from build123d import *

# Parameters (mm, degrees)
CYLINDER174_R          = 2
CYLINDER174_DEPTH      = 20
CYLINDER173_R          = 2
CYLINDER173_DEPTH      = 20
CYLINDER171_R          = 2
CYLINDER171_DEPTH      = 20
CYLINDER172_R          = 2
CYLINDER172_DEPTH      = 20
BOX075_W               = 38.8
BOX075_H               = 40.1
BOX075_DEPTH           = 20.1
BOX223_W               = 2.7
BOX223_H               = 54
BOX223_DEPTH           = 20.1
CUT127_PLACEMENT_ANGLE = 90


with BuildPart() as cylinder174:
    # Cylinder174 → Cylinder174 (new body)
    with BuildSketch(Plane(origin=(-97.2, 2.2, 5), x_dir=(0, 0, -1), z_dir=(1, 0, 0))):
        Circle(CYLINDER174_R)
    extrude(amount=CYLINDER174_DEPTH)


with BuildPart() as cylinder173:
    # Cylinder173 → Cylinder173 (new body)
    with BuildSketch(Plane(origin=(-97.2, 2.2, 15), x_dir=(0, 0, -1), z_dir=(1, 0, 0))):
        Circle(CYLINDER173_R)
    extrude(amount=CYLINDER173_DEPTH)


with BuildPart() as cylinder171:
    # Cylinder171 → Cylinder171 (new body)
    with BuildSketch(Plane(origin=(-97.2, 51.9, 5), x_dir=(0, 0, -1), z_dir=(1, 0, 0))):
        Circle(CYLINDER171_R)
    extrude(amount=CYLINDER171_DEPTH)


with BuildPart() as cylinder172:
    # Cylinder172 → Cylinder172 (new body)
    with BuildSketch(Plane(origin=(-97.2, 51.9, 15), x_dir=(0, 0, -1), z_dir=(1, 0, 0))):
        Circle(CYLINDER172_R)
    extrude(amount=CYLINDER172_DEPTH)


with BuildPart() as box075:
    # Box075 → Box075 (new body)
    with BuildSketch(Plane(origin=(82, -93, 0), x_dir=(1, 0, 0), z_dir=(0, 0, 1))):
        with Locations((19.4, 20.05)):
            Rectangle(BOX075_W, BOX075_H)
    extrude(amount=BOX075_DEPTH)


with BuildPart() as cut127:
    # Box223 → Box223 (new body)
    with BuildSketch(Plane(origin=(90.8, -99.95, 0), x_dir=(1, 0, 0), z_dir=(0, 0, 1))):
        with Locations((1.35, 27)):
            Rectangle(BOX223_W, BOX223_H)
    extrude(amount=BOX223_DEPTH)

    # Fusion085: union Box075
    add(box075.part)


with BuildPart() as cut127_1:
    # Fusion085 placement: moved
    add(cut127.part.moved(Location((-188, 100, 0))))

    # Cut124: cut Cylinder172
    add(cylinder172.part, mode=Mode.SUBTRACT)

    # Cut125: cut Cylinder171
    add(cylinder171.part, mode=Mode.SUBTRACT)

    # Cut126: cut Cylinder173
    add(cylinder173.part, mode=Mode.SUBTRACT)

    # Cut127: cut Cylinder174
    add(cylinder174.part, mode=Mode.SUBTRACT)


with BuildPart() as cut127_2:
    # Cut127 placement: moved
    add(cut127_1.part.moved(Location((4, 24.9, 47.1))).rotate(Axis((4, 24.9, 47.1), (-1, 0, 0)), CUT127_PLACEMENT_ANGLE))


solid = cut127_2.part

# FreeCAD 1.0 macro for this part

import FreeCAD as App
import Part
import Sketcher

doc = App.newDocument("Part")
body = doc.addObject("PartDesign::Body", "Body")

# Sketch on YZ plane
sketch1 = body.newObject("Sketcher::SketchObject", "Sketch")
sketch1.AttachmentSupport = (doc.getObject("YZ_Plane"), [""])
sketch1.MapMode = "FlatFace"
sketch1.AttachmentOffset = App.Placement(App.Vector(0, 0, -97.2), App.Rotation())
sketch1.addGeometry(Part.Circle(App.Vector(2.2, 5, 0), App.Vector(0, 0, 1), 2), False)
sketch1.addConstraint(Sketcher.Constraint("Diameter", 0, 4.0))
sketch1.addConstraint(Sketcher.Constraint("DistanceY", -1, 1, 0, 3, 5.0))
sketch1.addConstraint(Sketcher.Constraint("DistanceX", -1, 1, 0, 3, 2.2))
pad1 = body.newObject("PartDesign::Pad", "Pad")
pad1.Profile = sketch1
pad1.Length = 20
body2 = doc.addObject("PartDesign::Body", "Body001")

# Sketch on YZ plane
sketch2 = body2.newObject("Sketcher::SketchObject", "Sketch001")
sketch2.AttachmentSupport = (doc.getObject("YZ_Plane001"), [""])
sketch2.MapMode = "FlatFace"
sketch2.AttachmentOffset = App.Placement(App.Vector(0, 0, -97.2), App.Rotation())
sketch2.addGeometry(Part.Circle(App.Vector(2.2, 15, 0), App.Vector(0, 0, 1), 2), False)
sketch2.addConstraint(Sketcher.Constraint("Diameter", 0, 4.0))
sketch2.addConstraint(Sketcher.Constraint("DistanceY", -1, 1, 0, 3, 15.0))
sketch2.addConstraint(Sketcher.Constraint("DistanceX", -1, 1, 0, 3, 2.2))
pad2 = body2.newObject("PartDesign::Pad", "Pad001")
pad2.Profile = sketch2
pad2.Length = 20
body3 = doc.addObject("PartDesign::Body", "Body002")

# Sketch on YZ plane
sketch3 = body3.newObject("Sketcher::SketchObject", "Sketch002")
sketch3.AttachmentSupport = (doc.getObject("YZ_Plane002"), [""])
sketch3.MapMode = "FlatFace"
sketch3.AttachmentOffset = App.Placement(App.Vector(0, 0, -97.2), App.Rotation())
sketch3.addGeometry(Part.Circle(App.Vector(51.9, 5, 0), App.Vector(0, 0, 1), 2), False)
sketch3.addConstraint(Sketcher.Constraint("Diameter", 0, 4.0))
sketch3.addConstraint(Sketcher.Constraint("DistanceY", -1, 1, 0, 3, 5.0))
sketch3.addConstraint(Sketcher.Constraint("DistanceX", -1, 1, 0, 3, 51.9))
pad3 = body3.newObject("PartDesign::Pad", "Pad002")
pad3.Profile = sketch3
pad3.Length = 20
body4 = doc.addObject("PartDesign::Body", "Body003")

# Sketch on YZ plane
sketch4 = body4.newObject("Sketcher::SketchObject", "Sketch003")
sketch4.AttachmentSupport = (doc.getObject("YZ_Plane003"), [""])
sketch4.MapMode = "FlatFace"
sketch4.AttachmentOffset = App.Placement(App.Vector(0, 0, -97.2), App.Rotation())
sketch4.addGeometry(Part.Circle(App.Vector(51.9, 15, 0), App.Vector(0, 0, 1), 2), False)
sketch4.addConstraint(Sketcher.Constraint("Diameter", 0, 4.0))
sketch4.addConstraint(Sketcher.Constraint("DistanceY", -1, 1, 0, 3, 15.0))
sketch4.addConstraint(Sketcher.Constraint("DistanceX", -1, 1, 0, 3, 51.9))
pad4 = body4.newObject("PartDesign::Pad", "Pad003")
pad4.Profile = sketch4
pad4.Length = 20
body5 = doc.addObject("PartDesign::Body", "Body004")

# Sketch on XY plane
sketch5 = body5.newObject("Sketcher::SketchObject", "Sketch004")
sketch5.AttachmentSupport = (doc.getObject("XY_Plane004"), [""])
sketch5.MapMode = "FlatFace"
sketch5.addGeometry(Part.LineSegment(App.Vector(82, -53, 0), App.Vector(82, -93, 0)), False)
sketch5.addGeometry(Part.LineSegment(App.Vector(82, -93, 0), App.Vector(121, -93, 0)), False)
sketch5.addGeometry(Part.LineSegment(App.Vector(121, -93, 0), App.Vector(121, -53, 0)), False)
sketch5.addGeometry(Part.LineSegment(App.Vector(121, -53, 0), App.Vector(82, -53, 0)), False)
sketch5.addConstraint(Sketcher.Constraint("Coincident", 0, 2, 1, 1))
sketch5.addConstraint(Sketcher.Constraint("Coincident", 1, 2, 2, 1))
sketch5.addConstraint(Sketcher.Constraint("Coincident", 2, 2, 3, 1))
sketch5.addConstraint(Sketcher.Constraint("Coincident", 3, 2, 0, 1))
sketch5.addConstraint(Sketcher.Constraint("Vertical", 0))
sketch5.addConstraint(Sketcher.Constraint("Horizontal", 1))
sketch5.addConstraint(Sketcher.Constraint("Vertical", 2))
sketch5.addConstraint(Sketcher.Constraint("Horizontal", 3))
sketch5.addConstraint(Sketcher.Constraint("DistanceX", 1, 1, 1, 2, 38.8))
sketch5.addConstraint(Sketcher.Constraint("DistanceY", 0, 2, 0, 1, 40.1))
sketch5.addConstraint(Sketcher.Constraint("DistanceX", -1, 1, 0, 2, 82.0))
sketch5.addConstraint(Sketcher.Constraint("DistanceY", 0, 2, -1, 1, 93.0))
pad5 = body5.newObject("PartDesign::Pad", "Pad004")
pad5.Profile = sketch5
pad5.Length = 20.1
body6 = doc.addObject("PartDesign::Body", "Body005")

# Sketch on XY plane
sketch6 = body6.newObject("Sketcher::SketchObject", "Sketch005")
sketch6.AttachmentSupport = (doc.getObject("XY_Plane005"), [""])
sketch6.MapMode = "FlatFace"
sketch6.addGeometry(Part.LineSegment(App.Vector(90.8, -46, 0), App.Vector(90.8, -100, 0)), False)
sketch6.addGeometry(Part.LineSegment(App.Vector(90.8, -100, 0), App.Vector(93.5, -100, 0)), False)
sketch6.addGeometry(Part.LineSegment(App.Vector(93.5, -100, 0), App.Vector(93.5, -46, 0)), False)
sketch6.addGeometry(Part.LineSegment(App.Vector(93.5, -46, 0), App.Vector(90.8, -46, 0)), False)
sketch6.addConstraint(Sketcher.Constraint("Coincident", 0, 2, 1, 1))
sketch6.addConstraint(Sketcher.Constraint("Coincident", 1, 2, 2, 1))
sketch6.addConstraint(Sketcher.Constraint("Coincident", 2, 2, 3, 1))
sketch6.addConstraint(Sketcher.Constraint("Coincident", 3, 2, 0, 1))
sketch6.addConstraint(Sketcher.Constraint("Vertical", 0))
sketch6.addConstraint(Sketcher.Constraint("Horizontal", 1))
sketch6.addConstraint(Sketcher.Constraint("Vertical", 2))
sketch6.addConstraint(Sketcher.Constraint("Horizontal", 3))
sketch6.addConstraint(Sketcher.Constraint("DistanceY", 0, 2, 0, 1, 54.0))
sketch6.addConstraint(Sketcher.Constraint("DistanceX", 1, 1, 1, 2, 2.7))
sketch6.addConstraint(Sketcher.Constraint("DistanceX", -1, 1, 0, 2, 90.8))
sketch6.addConstraint(Sketcher.Constraint("DistanceY", 0, 2, -1, 1, 99.95))
pad6 = body6.newObject("PartDesign::Pad", "Pad005")
pad6.Profile = sketch6
pad6.Length = 20.1
doc.recompute()

boolean = body6.newObject("PartDesign::Boolean", "Boolean")
boolean.Type = "Fuse"
boolean.addObjects([body5])
body7 = doc.addObject("PartDesign::Body", "Body006")
doc.recompute()

body6.Placement = App.Placement(App.Vector(-188, 100, 0), App.Rotation(App.Vector(0, 0, 1), 0))
boolean2 = body7.newObject("PartDesign::Boolean", "Boolean001")
boolean2.Type = "Fuse"
boolean2.addObjects([body6])
doc.recompute()

boolean3 = body7.newObject("PartDesign::Boolean", "Boolean002")
boolean3.Type = "Cut"
boolean3.addObjects([body4])
doc.recompute()

boolean4 = body7.newObject("PartDesign::Boolean", "Boolean003")
boolean4.Type = "Cut"
boolean4.addObjects([body3])
doc.recompute()

boolean5 = body7.newObject("PartDesign::Boolean", "Boolean004")
boolean5.Type = "Cut"
boolean5.addObjects([body2])
doc.recompute()

boolean6 = body7.newObject("PartDesign::Boolean", "Boolean005")
boolean6.Type = "Cut"
boolean6.addObjects([body])
body8 = doc.addObject("PartDesign::Body", "Body007")
doc.recompute()

body7.Placement = App.Placement(App.Vector(4, 24.9, 47.1), App.Rotation(App.Vector(-1, 0, 0), 90))
boolean7 = body8.newObject("PartDesign::Boolean", "Boolean006")
boolean7.Type = "Fuse"
boolean7.addObjects([body7])

doc.recompute()
